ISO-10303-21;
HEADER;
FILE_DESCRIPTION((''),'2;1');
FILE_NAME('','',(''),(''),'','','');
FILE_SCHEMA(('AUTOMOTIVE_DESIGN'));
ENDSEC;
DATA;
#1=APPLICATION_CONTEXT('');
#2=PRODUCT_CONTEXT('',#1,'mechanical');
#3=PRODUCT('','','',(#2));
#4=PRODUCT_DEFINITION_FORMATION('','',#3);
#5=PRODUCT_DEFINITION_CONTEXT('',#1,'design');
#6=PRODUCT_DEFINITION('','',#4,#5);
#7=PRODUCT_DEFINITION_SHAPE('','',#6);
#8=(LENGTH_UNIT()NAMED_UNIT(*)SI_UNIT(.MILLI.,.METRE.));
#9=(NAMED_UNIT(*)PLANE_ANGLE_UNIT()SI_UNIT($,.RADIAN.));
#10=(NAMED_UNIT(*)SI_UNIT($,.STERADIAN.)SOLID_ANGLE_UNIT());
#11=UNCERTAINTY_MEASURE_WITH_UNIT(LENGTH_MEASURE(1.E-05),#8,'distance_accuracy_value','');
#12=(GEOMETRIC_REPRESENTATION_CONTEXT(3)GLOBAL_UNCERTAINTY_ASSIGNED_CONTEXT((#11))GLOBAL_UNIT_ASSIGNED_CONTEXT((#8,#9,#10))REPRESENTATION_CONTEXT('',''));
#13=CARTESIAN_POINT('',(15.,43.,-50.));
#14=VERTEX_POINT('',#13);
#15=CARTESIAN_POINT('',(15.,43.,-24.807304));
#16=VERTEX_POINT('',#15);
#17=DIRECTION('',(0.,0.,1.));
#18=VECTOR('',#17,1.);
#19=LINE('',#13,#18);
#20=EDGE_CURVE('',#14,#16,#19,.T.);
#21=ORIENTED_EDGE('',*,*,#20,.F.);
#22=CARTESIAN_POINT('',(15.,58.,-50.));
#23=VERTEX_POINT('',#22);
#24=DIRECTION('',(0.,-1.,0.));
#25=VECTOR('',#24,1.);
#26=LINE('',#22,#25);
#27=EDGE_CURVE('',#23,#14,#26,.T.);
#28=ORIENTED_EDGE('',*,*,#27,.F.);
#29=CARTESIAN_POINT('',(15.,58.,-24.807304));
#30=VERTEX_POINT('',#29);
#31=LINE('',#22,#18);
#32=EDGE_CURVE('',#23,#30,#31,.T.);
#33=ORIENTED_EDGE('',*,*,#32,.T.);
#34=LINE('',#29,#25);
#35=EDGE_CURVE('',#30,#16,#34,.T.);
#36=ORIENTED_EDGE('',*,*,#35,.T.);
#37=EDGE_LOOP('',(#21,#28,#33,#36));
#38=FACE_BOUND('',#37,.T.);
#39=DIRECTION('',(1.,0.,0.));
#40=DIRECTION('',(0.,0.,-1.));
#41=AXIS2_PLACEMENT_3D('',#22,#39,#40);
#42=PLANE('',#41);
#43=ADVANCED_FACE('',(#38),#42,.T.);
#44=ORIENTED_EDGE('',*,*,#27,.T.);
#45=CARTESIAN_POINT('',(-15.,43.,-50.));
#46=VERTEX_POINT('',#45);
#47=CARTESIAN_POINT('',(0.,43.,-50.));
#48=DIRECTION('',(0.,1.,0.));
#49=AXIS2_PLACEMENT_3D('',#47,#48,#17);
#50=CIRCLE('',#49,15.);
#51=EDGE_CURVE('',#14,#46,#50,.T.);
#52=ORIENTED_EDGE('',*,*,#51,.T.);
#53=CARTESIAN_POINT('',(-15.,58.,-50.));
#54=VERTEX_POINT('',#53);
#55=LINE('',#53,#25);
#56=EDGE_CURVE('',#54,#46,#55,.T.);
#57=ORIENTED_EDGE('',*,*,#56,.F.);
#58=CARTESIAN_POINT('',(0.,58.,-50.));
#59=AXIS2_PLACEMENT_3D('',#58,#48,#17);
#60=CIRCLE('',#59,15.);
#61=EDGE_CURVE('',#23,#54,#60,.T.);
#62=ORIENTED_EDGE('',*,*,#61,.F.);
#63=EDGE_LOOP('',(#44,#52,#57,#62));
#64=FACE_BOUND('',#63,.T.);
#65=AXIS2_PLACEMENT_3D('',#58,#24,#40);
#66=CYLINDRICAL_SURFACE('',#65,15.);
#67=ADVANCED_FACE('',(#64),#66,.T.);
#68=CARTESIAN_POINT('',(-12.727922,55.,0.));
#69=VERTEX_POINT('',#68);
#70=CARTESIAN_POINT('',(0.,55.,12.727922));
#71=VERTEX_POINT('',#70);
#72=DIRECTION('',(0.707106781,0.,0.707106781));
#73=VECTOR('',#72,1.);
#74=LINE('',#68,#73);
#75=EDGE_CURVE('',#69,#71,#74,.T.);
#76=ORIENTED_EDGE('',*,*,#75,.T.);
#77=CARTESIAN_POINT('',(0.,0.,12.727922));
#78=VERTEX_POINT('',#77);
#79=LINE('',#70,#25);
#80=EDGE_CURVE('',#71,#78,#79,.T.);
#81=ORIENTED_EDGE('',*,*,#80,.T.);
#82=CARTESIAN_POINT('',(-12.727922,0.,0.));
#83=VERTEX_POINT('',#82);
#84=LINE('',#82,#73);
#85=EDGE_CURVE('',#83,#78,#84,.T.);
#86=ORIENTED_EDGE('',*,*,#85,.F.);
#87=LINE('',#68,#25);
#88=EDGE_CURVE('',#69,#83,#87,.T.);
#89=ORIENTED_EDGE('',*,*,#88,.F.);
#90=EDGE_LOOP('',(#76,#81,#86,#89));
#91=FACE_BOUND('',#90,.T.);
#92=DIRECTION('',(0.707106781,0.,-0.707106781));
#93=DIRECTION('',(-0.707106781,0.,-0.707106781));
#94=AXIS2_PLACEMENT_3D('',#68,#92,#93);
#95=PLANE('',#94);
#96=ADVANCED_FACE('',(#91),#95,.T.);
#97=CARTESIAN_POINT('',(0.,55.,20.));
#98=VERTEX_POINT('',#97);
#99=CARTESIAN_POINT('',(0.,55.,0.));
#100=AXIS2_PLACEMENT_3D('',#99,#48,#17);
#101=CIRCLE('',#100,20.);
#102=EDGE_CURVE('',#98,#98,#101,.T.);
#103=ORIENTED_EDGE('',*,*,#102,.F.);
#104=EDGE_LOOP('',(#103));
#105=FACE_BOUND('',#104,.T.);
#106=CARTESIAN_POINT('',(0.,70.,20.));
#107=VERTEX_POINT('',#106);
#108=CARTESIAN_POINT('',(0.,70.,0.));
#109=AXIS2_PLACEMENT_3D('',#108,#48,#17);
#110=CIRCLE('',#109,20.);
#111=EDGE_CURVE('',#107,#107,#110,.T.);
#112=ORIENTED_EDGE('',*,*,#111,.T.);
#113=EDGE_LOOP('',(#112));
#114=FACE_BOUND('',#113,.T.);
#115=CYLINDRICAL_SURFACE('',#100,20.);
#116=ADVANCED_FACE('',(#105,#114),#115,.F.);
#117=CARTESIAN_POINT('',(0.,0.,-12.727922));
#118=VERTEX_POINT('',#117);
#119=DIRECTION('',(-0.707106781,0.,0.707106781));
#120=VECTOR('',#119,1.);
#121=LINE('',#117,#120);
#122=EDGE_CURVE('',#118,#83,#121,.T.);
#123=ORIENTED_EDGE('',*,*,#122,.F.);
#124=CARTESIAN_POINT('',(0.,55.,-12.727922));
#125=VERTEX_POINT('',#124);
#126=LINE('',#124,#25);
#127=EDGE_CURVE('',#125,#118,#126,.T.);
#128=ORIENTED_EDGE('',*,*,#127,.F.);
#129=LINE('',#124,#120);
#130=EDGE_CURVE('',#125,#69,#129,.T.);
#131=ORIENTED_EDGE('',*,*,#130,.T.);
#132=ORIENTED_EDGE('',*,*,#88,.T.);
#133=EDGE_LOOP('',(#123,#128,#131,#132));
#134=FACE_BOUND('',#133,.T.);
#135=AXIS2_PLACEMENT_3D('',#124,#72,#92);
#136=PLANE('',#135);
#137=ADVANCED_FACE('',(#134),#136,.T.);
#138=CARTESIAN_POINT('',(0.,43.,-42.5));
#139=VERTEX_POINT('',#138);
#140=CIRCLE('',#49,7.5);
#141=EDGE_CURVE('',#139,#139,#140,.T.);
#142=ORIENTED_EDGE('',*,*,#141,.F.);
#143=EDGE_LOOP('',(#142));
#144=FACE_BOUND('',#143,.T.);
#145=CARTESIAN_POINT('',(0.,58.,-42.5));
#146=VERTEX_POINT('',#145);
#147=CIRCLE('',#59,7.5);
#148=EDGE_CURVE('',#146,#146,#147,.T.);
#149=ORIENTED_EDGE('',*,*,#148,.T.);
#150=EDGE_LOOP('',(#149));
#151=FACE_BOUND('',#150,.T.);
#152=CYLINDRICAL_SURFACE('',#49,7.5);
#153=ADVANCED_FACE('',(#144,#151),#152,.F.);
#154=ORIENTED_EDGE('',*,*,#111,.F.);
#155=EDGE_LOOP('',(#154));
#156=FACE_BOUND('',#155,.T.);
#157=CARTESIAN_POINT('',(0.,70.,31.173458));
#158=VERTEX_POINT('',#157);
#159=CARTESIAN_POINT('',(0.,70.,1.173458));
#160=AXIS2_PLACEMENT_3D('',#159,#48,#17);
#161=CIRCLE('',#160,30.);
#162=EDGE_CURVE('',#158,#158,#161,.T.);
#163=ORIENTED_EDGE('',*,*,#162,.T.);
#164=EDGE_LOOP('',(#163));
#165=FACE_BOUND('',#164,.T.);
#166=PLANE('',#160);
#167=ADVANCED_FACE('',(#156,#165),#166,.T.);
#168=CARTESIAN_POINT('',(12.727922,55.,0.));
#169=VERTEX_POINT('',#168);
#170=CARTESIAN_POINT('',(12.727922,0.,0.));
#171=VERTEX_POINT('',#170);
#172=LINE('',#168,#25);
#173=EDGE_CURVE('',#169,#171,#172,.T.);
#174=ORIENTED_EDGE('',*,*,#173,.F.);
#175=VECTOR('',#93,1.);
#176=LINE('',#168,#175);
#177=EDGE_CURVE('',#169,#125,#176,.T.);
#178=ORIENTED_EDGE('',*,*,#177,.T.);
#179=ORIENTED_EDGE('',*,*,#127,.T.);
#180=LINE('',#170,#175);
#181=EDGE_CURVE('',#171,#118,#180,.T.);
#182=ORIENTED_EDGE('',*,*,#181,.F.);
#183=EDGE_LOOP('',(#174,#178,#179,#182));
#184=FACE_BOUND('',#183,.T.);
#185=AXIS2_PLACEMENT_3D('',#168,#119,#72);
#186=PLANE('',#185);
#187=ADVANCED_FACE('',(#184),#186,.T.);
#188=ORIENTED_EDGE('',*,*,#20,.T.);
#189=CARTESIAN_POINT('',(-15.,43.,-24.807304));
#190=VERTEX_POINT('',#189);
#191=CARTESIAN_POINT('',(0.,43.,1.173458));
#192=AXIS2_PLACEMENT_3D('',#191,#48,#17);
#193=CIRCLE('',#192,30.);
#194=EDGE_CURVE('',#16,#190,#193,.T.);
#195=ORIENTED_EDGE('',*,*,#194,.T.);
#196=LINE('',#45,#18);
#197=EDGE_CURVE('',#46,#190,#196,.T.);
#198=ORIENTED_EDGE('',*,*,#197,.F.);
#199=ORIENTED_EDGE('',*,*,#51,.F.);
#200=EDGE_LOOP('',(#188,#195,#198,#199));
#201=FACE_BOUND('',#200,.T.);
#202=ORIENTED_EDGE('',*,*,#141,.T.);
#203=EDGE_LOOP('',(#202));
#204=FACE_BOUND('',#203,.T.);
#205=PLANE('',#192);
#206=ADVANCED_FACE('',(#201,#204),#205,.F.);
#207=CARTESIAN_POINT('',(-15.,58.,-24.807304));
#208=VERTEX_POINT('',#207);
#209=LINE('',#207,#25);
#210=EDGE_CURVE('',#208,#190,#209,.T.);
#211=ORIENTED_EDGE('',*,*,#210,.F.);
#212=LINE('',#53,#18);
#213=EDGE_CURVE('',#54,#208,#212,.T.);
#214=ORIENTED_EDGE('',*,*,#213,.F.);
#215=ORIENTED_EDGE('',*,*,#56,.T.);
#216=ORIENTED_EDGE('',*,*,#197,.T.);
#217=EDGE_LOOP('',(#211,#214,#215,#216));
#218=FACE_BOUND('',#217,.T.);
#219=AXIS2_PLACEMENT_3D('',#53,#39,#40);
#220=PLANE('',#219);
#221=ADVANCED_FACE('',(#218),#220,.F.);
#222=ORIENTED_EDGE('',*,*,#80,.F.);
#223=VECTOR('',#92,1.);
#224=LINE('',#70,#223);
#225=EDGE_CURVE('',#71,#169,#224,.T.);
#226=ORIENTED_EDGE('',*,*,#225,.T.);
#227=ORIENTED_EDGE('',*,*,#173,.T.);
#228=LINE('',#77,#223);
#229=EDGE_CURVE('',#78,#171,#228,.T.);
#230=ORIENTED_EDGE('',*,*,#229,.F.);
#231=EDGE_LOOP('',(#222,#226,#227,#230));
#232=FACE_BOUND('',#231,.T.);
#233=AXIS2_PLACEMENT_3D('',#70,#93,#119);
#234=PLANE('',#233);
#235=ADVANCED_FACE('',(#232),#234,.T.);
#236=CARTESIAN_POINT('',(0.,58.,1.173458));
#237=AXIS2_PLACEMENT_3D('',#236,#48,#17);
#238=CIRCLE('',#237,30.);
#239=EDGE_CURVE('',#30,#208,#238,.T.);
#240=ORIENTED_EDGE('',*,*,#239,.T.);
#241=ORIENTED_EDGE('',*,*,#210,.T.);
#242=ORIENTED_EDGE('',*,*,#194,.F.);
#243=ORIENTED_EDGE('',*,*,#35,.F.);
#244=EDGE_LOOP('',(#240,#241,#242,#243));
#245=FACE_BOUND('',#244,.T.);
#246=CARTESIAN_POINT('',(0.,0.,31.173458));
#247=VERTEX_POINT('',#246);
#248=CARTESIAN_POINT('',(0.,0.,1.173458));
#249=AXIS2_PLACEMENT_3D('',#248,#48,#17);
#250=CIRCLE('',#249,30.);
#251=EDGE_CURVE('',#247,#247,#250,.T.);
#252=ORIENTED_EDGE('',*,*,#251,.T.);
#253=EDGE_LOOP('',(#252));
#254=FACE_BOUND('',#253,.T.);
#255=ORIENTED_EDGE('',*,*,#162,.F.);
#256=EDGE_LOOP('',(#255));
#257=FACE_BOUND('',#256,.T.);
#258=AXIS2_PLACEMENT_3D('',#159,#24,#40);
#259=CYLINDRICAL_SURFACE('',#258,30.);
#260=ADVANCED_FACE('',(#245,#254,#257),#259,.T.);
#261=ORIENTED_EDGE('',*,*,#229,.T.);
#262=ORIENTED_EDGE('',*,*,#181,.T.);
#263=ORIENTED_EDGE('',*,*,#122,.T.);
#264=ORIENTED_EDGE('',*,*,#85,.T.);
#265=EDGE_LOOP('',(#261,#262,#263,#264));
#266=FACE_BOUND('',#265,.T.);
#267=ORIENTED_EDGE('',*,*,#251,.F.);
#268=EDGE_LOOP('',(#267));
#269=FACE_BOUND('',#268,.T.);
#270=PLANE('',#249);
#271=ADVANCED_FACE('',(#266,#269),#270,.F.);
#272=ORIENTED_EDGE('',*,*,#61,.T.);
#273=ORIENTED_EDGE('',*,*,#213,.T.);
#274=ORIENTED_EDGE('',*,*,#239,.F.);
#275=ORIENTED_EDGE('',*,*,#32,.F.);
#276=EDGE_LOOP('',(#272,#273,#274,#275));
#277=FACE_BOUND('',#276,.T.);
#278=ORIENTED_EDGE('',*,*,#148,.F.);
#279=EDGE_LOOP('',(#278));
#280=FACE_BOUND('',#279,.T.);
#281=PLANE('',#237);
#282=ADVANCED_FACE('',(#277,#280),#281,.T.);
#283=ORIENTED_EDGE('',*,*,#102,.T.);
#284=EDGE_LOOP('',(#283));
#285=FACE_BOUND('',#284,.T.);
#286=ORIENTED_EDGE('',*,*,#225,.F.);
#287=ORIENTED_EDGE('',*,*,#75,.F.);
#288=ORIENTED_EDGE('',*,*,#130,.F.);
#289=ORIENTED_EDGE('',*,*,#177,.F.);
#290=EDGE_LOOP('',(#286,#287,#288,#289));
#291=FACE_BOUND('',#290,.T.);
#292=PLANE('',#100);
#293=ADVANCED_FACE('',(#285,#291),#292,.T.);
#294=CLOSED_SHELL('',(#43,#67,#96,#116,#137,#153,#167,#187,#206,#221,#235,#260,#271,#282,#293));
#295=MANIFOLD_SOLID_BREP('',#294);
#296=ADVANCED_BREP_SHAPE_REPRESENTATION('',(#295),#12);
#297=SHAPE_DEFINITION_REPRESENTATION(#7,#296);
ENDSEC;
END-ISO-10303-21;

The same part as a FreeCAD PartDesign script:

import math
import FreeCAD as App
import Part
import Sketcher
from FreeCAD import Vector

doc = App.newDocument("Part")
body = doc.addObject("PartDesign::Body", "Body")

sketch1 = body.newObject("Sketcher::SketchObject", "Sketch")
sketch1.AttachmentSupport = (doc.getObject("XZ_Plane"), [""])
sketch1.MapMode = "FlatFace"
sketch1.addGeometry(Part.Circle(Vector(0, 1.173458, 0), Vector(0, 0, 1), 30), False)
sketch1.addConstraint(Sketcher.Constraint("PointOnObject", 0, 3, -2))
sketch1.addConstraint(Sketcher.Constraint("Diameter", 0, 60.0))
sketch1.addConstraint(Sketcher.Constraint("DistanceY", -1, 1, 0, 3, 1.173458))
pad1 = body.newObject("PartDesign::Pad", "Pad")
pad1.Profile = sketch1
pad1.Length = 70
pad1.Reversed = True

sketch2 = body.newObject("Sketcher::SketchObject", "Sketch001")
sketch2.AttachmentSupport = (doc.getObject("XZ_Plane"), [""])
sketch2.MapMode = "FlatFace"
sketch2.AttachmentOffset = App.Placement(Vector(0, 0, -70), App.Rotation())
sketch2.addGeometry(Part.Circle(Vector(0, 0, 0), Vector(0, 0, 1), 20), False)
sketch2.addConstraint(Sketcher.Constraint("Coincident", 0, 3, -1, 1))
sketch2.addConstraint(Sketcher.Constraint("Diameter", 0, 40.0))
pocket1 = body.newObject("PartDesign::Pocket", "Pocket")
pocket1.Profile = sketch2
pocket1.Length = 15
pocket1.Reversed = True

sketch3 = body.newObject("Sketcher::SketchObject", "Sketch002")
sketch3.AttachmentSupport = (doc.getObject("XZ_Plane"), [""])
sketch3.MapMode = "FlatFace"
sketch3.addGeometry(Part.LineSegment(Vector(12.727922, 0, 0), Vector(0, 12.727922, 0)), False)
sketch3.addGeometry(Part.LineSegment(Vector(0, 12.727922, 0), Vector(-12.727922, 0, 0)), False)
sketch3.addGeometry(Part.LineSegment(Vector(-12.727922, 0, 0), Vector(0, -12.727922, 0)), False)
sketch3.addGeometry(Part.LineSegment(Vector(0, -12.727922, 0), Vector(12.727922, 0, 0)), False)
sketch3.addConstraint(Sketcher.Constraint("Coincident", 0, 2, 1, 1))
sketch3.addConstraint(Sketcher.Constraint("Coincident", 1, 2, 2, 1))
sketch3.addConstraint(Sketcher.Constraint("Coincident", 2, 2, 3, 1))
sketch3.addConstraint(Sketcher.Constraint("Coincident", 3, 2, 0, 1))
sketch3.addConstraint(Sketcher.Constraint("Symmetric", 0, 2, 2, 2, -1, 1))
sketch3.addConstraint(Sketcher.Constraint("Symmetric", 1, 2, 3, 2, -1, 1))
sketch3.addConstraint(Sketcher.Constraint("PointOnObject", 0, 2, -2))
sketch3.addConstraint(Sketcher.Constraint("PointOnObject", 1, 2, -1))
sketch3.addConstraint(Sketcher.Constraint("Perpendicular", 0, 1))
sketch3.addConstraint(Sketcher.Constraint("Distance", 0, 18.0))
pocket2 = body.newObject("PartDesign::Pocket", "Pocket001")
pocket2.Profile = sketch3
pocket2.Length = 55

sketch4 = body.newObject("Sketcher::SketchObject", "Sketch003")
sketch4.AttachmentSupport = (doc.getObject("XZ_Plane"), [""])
sketch4.MapMode = "FlatFace"
sketch4.AttachmentOffset = App.Placement(Vector(0, 0, -43), App.Rotation())
sketch4.addGeometry(Part.LineSegment(Vector(-15, -50, 0), Vector(-15, -24.807304, 0)), False)
sketch4.addGeometry(Part.ArcOfCircle(Part.Circle(Vector(0, 1.173458, 0), Vector(0, 0, 1), 30), math.radians(-120), math.radians(-60)), False)
sketch4.addGeometry(Part.LineSegment(Vector(15, -24.807304, 0), Vector(15, -50, 0)), False)
sketch4.addGeometry(Part.ArcOfCircle(Part.Circle(Vector(0, -50, 0), Vector(0, 0, 1), 15), math.radians(180), math.radians(360)), False)
sketch4.addConstraint(Sketcher.Constraint("Coincident", 0, 2, 1, 1))
sketch4.addConstraint(Sketcher.Constraint("Coincident", 1, 2, 2, 1))
sketch4.addConstraint(Sketcher.Constraint("Tangent", 2, 2, 3, 2))
sketch4.addConstraint(Sketcher.Constraint("Tangent", 3, 1, 0, 1))
sketch4.addConstraint(Sketcher.Constraint("Vertical", 0))
sketch4.addConstraint(Sketcher.Constraint("Vertical", 2))
sketch4.addConstraint(Sketcher.Constraint("Symmetric", 0, 2, 1, 2, -2))
sketch4.addConstraint(Sketcher.Constraint("Radius", 1, 30.0))
sketch4.addConstraint(Sketcher.Constraint("Radius", 3, 15.0))
sketch4.addConstraint(Sketcher.Constraint("DistanceY", 3, 3, -1, 1, 50.0))
sketch4.addConstraint(Sketcher.Constraint("DistanceY", 0, 1, 0, 2, 25.192696))
pad2 = body.newObject("PartDesign::Pad", "Pad001")
pad2.Profile = sketch4
pad2.Length = 15
pad2.Reversed = True

sketch5 = body.newObject("Sketcher::SketchObject", "Sketch004")
sketch5.AttachmentSupport = (doc.getObject("XZ_Plane"), [""])
sketch5.MapMode = "FlatFace"
sketch5.AttachmentOffset = App.Placement(Vector(0, 0, -58), App.Rotation())
sketch5.addGeometry(Part.Circle(Vector(0, -50, 0), Vector(0, 0, 1), 7.5), False)
sketch5.addConstraint(Sketcher.Constraint("PointOnObject", 0, 3, -2))
sketch5.addConstraint(Sketcher.Constraint("Diameter", 0, 15.0))
sketch5.addConstraint(Sketcher.Constraint("DistanceY", 0, 3, -1, 1, 50.0))
pocket3 = body.newObject("PartDesign::Pocket", "Pocket002")
pocket3.Profile = sketch5
pocket3.Length = 15
pocket3.Reversed = True

doc.recompute()
